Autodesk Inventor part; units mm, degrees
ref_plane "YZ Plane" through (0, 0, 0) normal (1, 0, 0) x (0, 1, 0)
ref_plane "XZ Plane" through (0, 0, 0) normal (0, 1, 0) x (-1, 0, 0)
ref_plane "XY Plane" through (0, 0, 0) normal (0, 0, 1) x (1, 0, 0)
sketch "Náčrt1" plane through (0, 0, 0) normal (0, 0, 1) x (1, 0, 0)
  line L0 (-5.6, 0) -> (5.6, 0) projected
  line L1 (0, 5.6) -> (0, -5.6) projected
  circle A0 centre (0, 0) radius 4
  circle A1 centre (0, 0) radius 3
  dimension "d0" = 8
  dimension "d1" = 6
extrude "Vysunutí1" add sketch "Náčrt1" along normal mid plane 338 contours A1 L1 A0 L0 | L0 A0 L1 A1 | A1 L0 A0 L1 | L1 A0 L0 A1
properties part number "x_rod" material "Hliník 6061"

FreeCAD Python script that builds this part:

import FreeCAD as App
import Part
import Sketcher

V = App.Vector
Q = App.Units.Quantity

doc = App.newDocument("Part")
params = doc.addObject("Spreadsheet::Sheet", "Params")
for row, (alias, value) in enumerate([
    ("sketch1_diameter", "8 mm"),
    ("sketch1_diameter2", "6 mm"),
    ("pad1_length", "338 mm"),
], start=1):
    params.set(f"A{row}", alias)
    params.set(f"B{row}", "=" + value)
    params.setAlias(f"B{row}", alias)

body = doc.addObject("PartDesign::Body", "Body")

sketch1 = body.newObject("Sketcher::SketchObject", "Sketch")
sketch1.AttachmentSupport = (doc.getObject("XY_Plane"), [""])
sketch1.MapMode = "FlatFace"
sketch1.addGeometry([
    Part.Circle(V(0, 0, 0), V(0, 0, 1), 4),
    Part.Circle(V(0, 0, 0), V(0, 0, 1), 3),
], False)
sketch1.addConstraint([
    Sketcher.Constraint("Coincident", 0, 3, -1, 1),
    Sketcher.Constraint("Coincident", 1, 3, -1, 1),
    Sketcher.Constraint("Diameter", 0, Q("8 mm")),
    Sketcher.Constraint("Diameter", 1, Q("6 mm")),
])
sketch1.setExpression("Constraints[2]", "Params.sketch1_diameter")
sketch1.setExpression("Constraints[3]", "Params.sketch1_diameter2")
pad1 = body.newObject("PartDesign::Pad", "Pad")
pad1.Profile = sketch1
pad1.setExpression("Length", "Params.pad1_length")
pad1.Midplane = True

doc.recompute()
